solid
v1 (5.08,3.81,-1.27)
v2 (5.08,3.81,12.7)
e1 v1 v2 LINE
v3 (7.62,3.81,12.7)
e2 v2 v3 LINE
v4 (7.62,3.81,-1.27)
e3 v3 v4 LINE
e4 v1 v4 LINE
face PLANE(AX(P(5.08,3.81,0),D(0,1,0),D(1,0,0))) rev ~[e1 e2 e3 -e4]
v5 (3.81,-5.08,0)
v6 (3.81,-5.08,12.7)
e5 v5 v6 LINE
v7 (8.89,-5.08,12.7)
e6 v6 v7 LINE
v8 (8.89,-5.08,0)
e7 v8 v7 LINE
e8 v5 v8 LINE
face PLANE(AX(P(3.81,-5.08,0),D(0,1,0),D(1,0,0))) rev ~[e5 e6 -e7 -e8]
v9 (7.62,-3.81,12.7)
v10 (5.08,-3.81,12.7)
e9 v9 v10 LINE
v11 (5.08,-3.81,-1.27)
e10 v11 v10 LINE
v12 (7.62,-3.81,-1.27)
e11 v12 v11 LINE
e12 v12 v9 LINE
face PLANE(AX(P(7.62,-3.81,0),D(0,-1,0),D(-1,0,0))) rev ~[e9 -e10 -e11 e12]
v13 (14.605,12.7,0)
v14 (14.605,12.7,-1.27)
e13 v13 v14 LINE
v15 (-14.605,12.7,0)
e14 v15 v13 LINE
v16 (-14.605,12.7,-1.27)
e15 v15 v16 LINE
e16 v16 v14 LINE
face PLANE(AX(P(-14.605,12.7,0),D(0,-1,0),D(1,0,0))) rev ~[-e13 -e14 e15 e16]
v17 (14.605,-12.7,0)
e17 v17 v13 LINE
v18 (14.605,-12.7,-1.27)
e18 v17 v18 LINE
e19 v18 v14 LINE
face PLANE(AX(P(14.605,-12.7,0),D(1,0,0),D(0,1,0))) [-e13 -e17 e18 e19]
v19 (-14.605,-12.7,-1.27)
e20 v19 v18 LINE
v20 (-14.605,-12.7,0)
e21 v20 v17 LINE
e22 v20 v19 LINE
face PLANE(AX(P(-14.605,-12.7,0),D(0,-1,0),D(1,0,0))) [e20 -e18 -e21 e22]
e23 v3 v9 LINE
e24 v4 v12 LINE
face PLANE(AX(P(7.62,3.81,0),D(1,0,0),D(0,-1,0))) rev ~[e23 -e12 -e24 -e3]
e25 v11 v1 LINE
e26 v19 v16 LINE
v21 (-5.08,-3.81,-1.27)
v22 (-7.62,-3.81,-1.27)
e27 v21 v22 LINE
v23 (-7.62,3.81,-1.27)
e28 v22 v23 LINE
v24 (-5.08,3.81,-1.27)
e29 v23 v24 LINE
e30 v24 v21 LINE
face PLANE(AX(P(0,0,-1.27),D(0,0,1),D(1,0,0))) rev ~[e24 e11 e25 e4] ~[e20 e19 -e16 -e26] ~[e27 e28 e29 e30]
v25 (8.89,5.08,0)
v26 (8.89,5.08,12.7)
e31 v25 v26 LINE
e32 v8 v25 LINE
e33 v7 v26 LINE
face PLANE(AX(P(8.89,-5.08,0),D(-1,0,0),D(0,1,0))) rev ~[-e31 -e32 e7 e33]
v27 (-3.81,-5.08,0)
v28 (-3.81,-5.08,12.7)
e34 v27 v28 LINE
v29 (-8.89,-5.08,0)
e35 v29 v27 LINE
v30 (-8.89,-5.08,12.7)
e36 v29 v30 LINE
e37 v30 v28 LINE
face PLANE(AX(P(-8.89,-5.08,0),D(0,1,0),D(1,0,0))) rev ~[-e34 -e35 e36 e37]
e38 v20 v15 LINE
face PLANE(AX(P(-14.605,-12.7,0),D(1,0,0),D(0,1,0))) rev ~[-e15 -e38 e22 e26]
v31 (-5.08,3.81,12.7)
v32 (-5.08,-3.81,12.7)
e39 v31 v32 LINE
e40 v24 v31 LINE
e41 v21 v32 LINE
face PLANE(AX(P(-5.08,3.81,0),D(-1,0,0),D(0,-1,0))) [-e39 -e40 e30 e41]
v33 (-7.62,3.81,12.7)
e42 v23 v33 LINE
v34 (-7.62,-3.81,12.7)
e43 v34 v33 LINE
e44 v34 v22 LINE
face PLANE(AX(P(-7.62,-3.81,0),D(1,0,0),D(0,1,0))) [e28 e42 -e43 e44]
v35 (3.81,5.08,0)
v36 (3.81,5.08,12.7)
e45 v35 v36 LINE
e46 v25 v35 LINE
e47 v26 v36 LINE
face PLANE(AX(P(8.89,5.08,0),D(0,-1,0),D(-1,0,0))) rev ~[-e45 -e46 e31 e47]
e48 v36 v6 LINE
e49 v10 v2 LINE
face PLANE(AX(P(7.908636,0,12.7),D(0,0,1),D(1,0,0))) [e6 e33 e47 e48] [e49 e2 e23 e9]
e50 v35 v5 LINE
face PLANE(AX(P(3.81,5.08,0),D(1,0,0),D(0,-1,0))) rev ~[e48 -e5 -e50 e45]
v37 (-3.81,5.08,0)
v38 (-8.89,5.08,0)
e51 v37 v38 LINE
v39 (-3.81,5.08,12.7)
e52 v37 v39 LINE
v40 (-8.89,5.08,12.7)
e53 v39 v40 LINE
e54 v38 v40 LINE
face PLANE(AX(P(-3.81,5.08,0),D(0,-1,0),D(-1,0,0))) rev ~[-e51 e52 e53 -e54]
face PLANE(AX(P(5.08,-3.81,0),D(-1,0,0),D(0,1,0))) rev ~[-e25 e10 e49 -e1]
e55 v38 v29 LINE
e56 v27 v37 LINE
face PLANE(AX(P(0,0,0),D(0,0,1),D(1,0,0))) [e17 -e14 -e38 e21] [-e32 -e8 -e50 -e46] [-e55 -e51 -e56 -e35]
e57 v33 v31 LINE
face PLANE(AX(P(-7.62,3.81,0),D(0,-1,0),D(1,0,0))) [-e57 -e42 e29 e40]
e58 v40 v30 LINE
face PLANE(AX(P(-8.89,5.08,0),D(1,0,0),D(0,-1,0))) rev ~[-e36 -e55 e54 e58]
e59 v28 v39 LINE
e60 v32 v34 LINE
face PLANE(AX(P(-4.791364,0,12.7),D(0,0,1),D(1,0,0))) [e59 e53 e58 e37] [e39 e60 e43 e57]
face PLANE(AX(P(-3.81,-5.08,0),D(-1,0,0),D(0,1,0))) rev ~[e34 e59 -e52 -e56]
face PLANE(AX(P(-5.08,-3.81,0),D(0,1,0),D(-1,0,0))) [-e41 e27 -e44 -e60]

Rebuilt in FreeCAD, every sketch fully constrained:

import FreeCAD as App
import Part
import Sketcher
from FreeCAD import Vector
Q = App.Units.Quantity

doc = App.newDocument("Part")
body = doc.addObject("PartDesign::Body", "Body")

sketch1 = doc.addObject("Sketcher::SketchObject", "Sketch")
body.addObject(sketch1)
sketch1.AttachmentSupport = (doc.XY_Plane, [""])
sketch1.MapMode = "FlatFace"
sketch1.addGeometry([
    Part.LineSegment(Vector(-14.6, 12.7, 0), Vector(-14.6, -12.7, 0)),
    Part.LineSegment(Vector(-14.6, -12.7, 0), Vector(14.6, -12.7, 0)),
    Part.LineSegment(Vector(14.6, -12.7, 0), Vector(14.6, 12.7, 0)),
    Part.LineSegment(Vector(14.6, 12.7, 0), Vector(-14.6, 12.7, 0)),
    Part.LineSegment(Vector(5.1, -3.8, 0), Vector(5.1, 3.8, 0)),
    Part.LineSegment(Vector(5.1, 3.8, 0), Vector(7.6, 3.8, 0)),
    Part.LineSegment(Vector(7.6, 3.8, 0), Vector(7.6, -3.8, 0)),
    Part.LineSegment(Vector(7.6, -3.8, 0), Vector(5.1, -3.8, 0)),
    Part.LineSegment(Vector(-7.6, -3.8, 0), Vector(-7.6, 3.8, 0)),
    Part.LineSegment(Vector(-7.6, 3.8, 0), Vector(-5.1, 3.8, 0)),
    Part.LineSegment(Vector(-5.1, 3.8, 0), Vector(-5.1, -3.8, 0)),
    Part.LineSegment(Vector(-5.1, -3.8, 0), Vector(-7.6, -3.8, 0)),
], False)
sketch1.addConstraint([
    Sketcher.Constraint("Coincident", 0, 2, 1, 1),
    Sketcher.Constraint("Coincident", 1, 2, 2, 1),
    Sketcher.Constraint("Coincident", 2, 2, 3, 1),
    Sketcher.Constraint("Coincident", 3, 2, 0, 1),
    Sketcher.Constraint("Coincident", 4, 2, 5, 1),
    Sketcher.Constraint("Coincident", 5, 2, 6, 1),
    Sketcher.Constraint("Coincident", 6, 2, 7, 1),
    Sketcher.Constraint("Coincident", 7, 2, 4, 1),
    Sketcher.Constraint("Coincident", 8, 2, 9, 1),
    Sketcher.Constraint("Coincident", 9, 2, 10, 1),
    Sketcher.Constraint("Coincident", 10, 2, 11, 1),
    Sketcher.Constraint("Coincident", 11, 2, 8, 1),
    Sketcher.Constraint("Vertical", 0),
    Sketcher.Constraint("Horizontal", 1),
    Sketcher.Constraint("Vertical", 2),
    Sketcher.Constraint("Horizontal", 3),
    Sketcher.Constraint("Vertical", 4),
    Sketcher.Constraint("Horizontal", 5),
    Sketcher.Constraint("Vertical", 6),
    Sketcher.Constraint("Horizontal", 7),
    Sketcher.Constraint("Vertical", 8),
    Sketcher.Constraint("Horizontal", 9),
    Sketcher.Constraint("Vertical", 10),
    Sketcher.Constraint("Horizontal", 11),
    Sketcher.Constraint("Symmetric", 0, 2, 2, 2, -1, 1),
    Sketcher.Constraint("Symmetric", 6, 2, 8, 2, -1, 1),
    Sketcher.Constraint("Symmetric", 4, 2, 10, 2, -1, 1),
    Sketcher.Constraint("Horizontal", 5, 2, 8, 2),
    Sketcher.Constraint("DistanceY", 0, 2, 0, 1, Q("1 in")),
    Sketcher.Constraint("DistanceX", 5, 1, 5, 2, Q("0.1 in")),
    Sketcher.Constraint("DistanceY", 4, 1, 4, 2, Q("0.3 in")),
    Sketcher.Constraint("DistanceX", 1, 1, 1, 2, Q("1.15 in")),
    Sketcher.Constraint("DistanceX", -1, 1, 4, 2, Q("0.2 in")),
])
pad1 = doc.addObject("PartDesign::Pad", "Pad")
body.addObject(pad1)
pad1.Profile = sketch1
pad1.Length = Q("0.05 in")
pad1.Reversed = True

sketch2 = doc.addObject("Sketcher::SketchObject", "Sketch001")
body.addObject(sketch2)
sketch2.AttachmentSupport = (doc.XY_Plane, [""])
sketch2.MapMode = "FlatFace"
sketch2.addGeometry([
    Part.LineSegment(Vector(8.9, -5.1, 0), Vector(8.9, 5.1, 0)),
    Part.LineSegment(Vector(8.9, 5.1, 0), Vector(3.8, 5.1, 0)),
    Part.LineSegment(Vector(3.8, 5.1, 0), Vector(3.8, -5.1, 0)),
    Part.LineSegment(Vector(3.8, -5.1, 0), Vector(8.9, -5.1, 0)),
    Part.LineSegment(Vector(7.6, 3.8, 0), Vector(7.6, -3.8, 0)),
    Part.LineSegment(Vector(7.6, -3.8, 0), Vector(5.1, -3.8, 0)),
    Part.LineSegment(Vector(5.1, -3.8, 0), Vector(5.1, 3.8, 0)),
    Part.LineSegment(Vector(5.1, 3.8, 0), Vector(7.6, 3.8, 0)),
    Part.LineSegment(Vector(-3.8, -5.1, 0), Vector(-3.8, 5.1, 0)),
    Part.LineSegment(Vector(-3.8, 5.1, 0), Vector(-8.9, 5.1, 0)),
    Part.LineSegment(Vector(-8.9, 5.1, 0), Vector(-8.9, -5.1, 0)),
    Part.LineSegment(Vector(-8.9, -5.1, 0), Vector(-3.8, -5.1, 0)),
    Part.LineSegment(Vector(-5.1, 3.8, 0), Vector(-5.1, -3.8, 0)),
    Part.LineSegment(Vector(-5.1, -3.8, 0), Vector(-7.6, -3.8, 0)),
    Part.LineSegment(Vector(-7.6, -3.8, 0), Vector(-7.6, 3.8, 0)),
    Part.LineSegment(Vector(-7.6, 3.8, 0), Vector(-5.1, 3.8, 0)),
], False)
sketch2.addConstraint([
    Sketcher.Constraint("Coincident", 0, 2, 1, 1),
    Sketcher.Constraint("Coincident", 1, 2, 2, 1),
    Sketcher.Constraint("Coincident", 2, 2, 3, 1),
    Sketcher.Constraint("Coincident", 3, 2, 0, 1),
    Sketcher.Constraint("Coincident", 4, 2, 5, 1),
    Sketcher.Constraint("Coincident", 5, 2, 6, 1),
    Sketcher.Constraint("Coincident", 6, 2, 7, 1),
    Sketcher.Constraint("Coincident", 7, 2, 4, 1),
    Sketcher.Constraint("Coincident", 8, 2, 9, 1),
    Sketcher.Constraint("Coincident", 9, 2, 10, 1),
    Sketcher.Constraint("Coincident", 10, 2, 11, 1),
    Sketcher.Constraint("Coincident", 11, 2, 8, 1),
    Sketcher.Constraint("Coincident", 12, 2, 13, 1),
    Sketcher.Constraint("Coincident", 13, 2, 14, 1),
    Sketcher.Constraint("Coincident", 14, 2, 15, 1),
    Sketcher.Constraint("Coincident", 15, 2, 12, 1),
    Sketcher.Constraint("Vertical", 0),
    Sketcher.Constraint("Horizontal", 1),
    Sketcher.Constraint("Vertical", 2),
    Sketcher.Constraint("Horizontal", 3),
    Sketcher.Constraint("Vertical", 4),
    Sketcher.Constraint("Horizontal", 5),
    Sketcher.Constraint("Vertical", 6),
    Sketcher.Constraint("Horizontal", 7),
    Sketcher.Constraint("Vertical", 8),
    Sketcher.Constraint("Horizontal", 9),
    Sketcher.Constraint("Vertical", 10),
    Sketcher.Constraint("Horizontal", 11),
    Sketcher.Constraint("Vertical", 12),
    Sketcher.Constraint("Horizontal", 13),
    Sketcher.Constraint("Vertical", 14),
    Sketcher.Constraint("Horizontal", 15),
    Sketcher.Constraint("Symmetric", 2, 2, 8, 2, -1, 1),
    Sketcher.Constraint("Symmetric", 0, 2, 10, 2, -1, 1),
    Sketcher.Constraint("Symmetric", 6, 2, 12, 2, -1, 1),
    Sketcher.Constraint("Symmetric", 4, 2, 14, 2, -1, 1),
    Sketcher.Constraint("Horizontal", 1, 2, 8, 2),
    Sketcher.Constraint("Horizontal", 5, 2, 12, 2),
    Sketcher.Constraint("DistanceX", 1, 2, 1, 1, Q("0.2 in")),
    Sketcher.Constraint("DistanceX", 5, 2, 5, 1, Q("0.1 in")),
    Sketcher.Constraint("DistanceY", 0, 1, 0, 2, Q("0.4 in")),
    Sketcher.Constraint("DistanceY", 4, 2, 4, 1, Q("0.3 in")),
    Sketcher.Constraint("DistanceX", -1, 1, 4, 2, Q("0.3 in")),
    Sketcher.Constraint("DistanceX", 8, 2, 1, 2, Q("0.3 in")),
])
pad2 = doc.addObject("PartDesign::Pad", "Pad001")
body.addObject(pad2)
pad2.Profile = sketch2
pad2.Length = Q("0.5 in")

doc.recompute()
